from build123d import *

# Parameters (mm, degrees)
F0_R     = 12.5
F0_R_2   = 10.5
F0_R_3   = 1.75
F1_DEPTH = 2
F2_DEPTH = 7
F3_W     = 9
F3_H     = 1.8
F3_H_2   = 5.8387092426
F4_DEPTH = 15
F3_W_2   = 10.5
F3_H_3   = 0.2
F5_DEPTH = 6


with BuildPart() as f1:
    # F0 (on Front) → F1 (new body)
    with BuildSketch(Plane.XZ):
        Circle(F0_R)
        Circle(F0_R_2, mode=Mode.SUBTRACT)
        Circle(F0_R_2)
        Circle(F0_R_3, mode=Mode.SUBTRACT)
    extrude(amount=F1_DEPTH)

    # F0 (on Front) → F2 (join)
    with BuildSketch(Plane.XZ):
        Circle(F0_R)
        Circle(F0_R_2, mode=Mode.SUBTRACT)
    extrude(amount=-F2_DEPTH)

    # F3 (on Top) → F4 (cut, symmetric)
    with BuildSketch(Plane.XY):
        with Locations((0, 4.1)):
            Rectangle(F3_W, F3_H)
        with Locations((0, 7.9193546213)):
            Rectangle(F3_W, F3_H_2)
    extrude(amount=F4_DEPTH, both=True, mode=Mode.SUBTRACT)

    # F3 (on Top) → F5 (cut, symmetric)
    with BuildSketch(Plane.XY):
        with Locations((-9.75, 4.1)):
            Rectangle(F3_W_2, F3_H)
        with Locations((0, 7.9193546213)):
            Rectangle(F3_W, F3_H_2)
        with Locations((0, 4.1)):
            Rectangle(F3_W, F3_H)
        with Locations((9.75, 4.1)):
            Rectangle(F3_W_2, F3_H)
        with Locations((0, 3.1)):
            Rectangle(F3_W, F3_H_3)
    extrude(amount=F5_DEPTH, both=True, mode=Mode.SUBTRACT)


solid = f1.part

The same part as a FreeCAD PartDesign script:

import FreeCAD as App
import Part
import Sketcher
from FreeCAD import Vector
Q = App.Units.Quantity

doc = App.newDocument("Part")
body = doc.addObject("PartDesign::Body", "Body")

sketch1 = body.newObject("Sketcher::SketchObject", "Sketch")
sketch1.AttachmentSupport = (doc.getObject("XZ_Plane"), [""])
sketch1.MapMode = "FlatFace"
sketch1.addGeometry([
    Part.Circle(Vector(0, 0, 0), Vector(0, 0, 1), 12.5),
    Part.Circle(Vector(0, 0, 0), Vector(0, 0, 1), 1.8),
], False)
sketch1.addConstraint([
    Sketcher.Constraint("Coincident", 0, 3, -1, 1),
    Sketcher.Constraint("Coincident", 1, 3, -1, 1),
    Sketcher.Constraint("Diameter", 0, Q("25 mm")),
    Sketcher.Constraint("Diameter", 1, Q("3.5 mm")),
])
pad1 = body.newObject("PartDesign::Pad", "Pad")
pad1.Profile = sketch1
pad1.Length = 2

sketch2 = body.newObject("Sketcher::SketchObject", "Sketch001")
sketch2.AttachmentSupport = (doc.getObject("XZ_Plane"), [""])
sketch2.MapMode = "FlatFace"
sketch2.addGeometry([
    Part.Circle(Vector(0, 0, 0), Vector(0, 0, 1), 12),
    Part.Circle(Vector(0, 0, 0), Vector(0, 0, 1), 10),
], False)
sketch2.addConstraint([
    Sketcher.Constraint("Coincident", 0, 3, -1, 1),
    Sketcher.Constraint("Coincident", 1, 3, -1, 1),
    Sketcher.Constraint("Diameter", 0, Q("25 mm")),
    Sketcher.Constraint("Diameter", 1, Q("21 mm")),
])
pad2 = body.newObject("PartDesign::Pad", "Pad001")
pad2.Profile = sketch2
pad2.Length = 7
pad2.Reversed = True

sketch3 = body.newObject("Sketcher::SketchObject", "Sketch002")
sketch3.AttachmentSupport = (doc.getObject("XY_Plane"), [""])
sketch3.MapMode = "FlatFace"
sketch3.addGeometry([
    Part.LineSegment(Vector(-4, 3, 0), Vector(4, 3, 0)),
    Part.LineSegment(Vector(4, 3, 0), Vector(4, 11, 0)),
    Part.LineSegment(Vector(4, 11, 0), Vector(-4, 11, 0)),
    Part.LineSegment(Vector(-4, 11, 0), Vector(-4, 3, 0)),
], False)
sketch3.addConstraint([
    Sketcher.Constraint("Coincident", 0, 2, 1, 1),
    Sketcher.Constraint("Coincident", 1, 2, 2, 1),
    Sketcher.Constraint("Coincident", 2, 2, 3, 1),
    Sketcher.Constraint("Coincident", 3, 2, 0, 1),
    Sketcher.Constraint("Horizontal", 0),
    Sketcher.Constraint("Vertical", 1),
    Sketcher.Constraint("Horizontal", 2),
    Sketcher.Constraint("Vertical", 3),
    Sketcher.Constraint("DistanceX", 0, 1, 0, 2, Q("9 mm")),
    Sketcher.Constraint("DistanceX", -1, 1, 0, 2, Q("4.5 mm")),
    Sketcher.Constraint("DistanceY", -1, 1, 0, 2, Q("3.2 mm")),
    Sketcher.Constraint("DistanceY", 1, 1, 1, 2, Q("7.638709 mm")),
])
pocket1 = body.newObject("PartDesign::Pocket", "Pocket")
pocket1.Profile = sketch3
pocket1.Length = 30
pocket1.Midplane = True

sketch4 = body.newObject("Sketcher::SketchObject", "Sketch003")
sketch4.AttachmentSupport = (doc.getObject("XY_Plane"), [""])
sketch4.MapMode = "FlatFace"
sketch4.addGeometry([
    Part.LineSegment(Vector(-15, 5, 0), Vector(-15, 3.2, 0)),
    Part.LineSegment(Vector(-15, 3.2, 0), Vector(-4.5, 3.2, 0)),
    Part.LineSegment(Vector(-4.5, 3.2, 0), Vector(-4.5, 3, 0)),
    Part.LineSegment(Vector(-4.5, 3, 0), Vector(4.5, 3, 0)),
    Part.LineSegment(Vector(4.5, 3, 0), Vector(4.5, 3.2, 0)),
    Part.LineSegment(Vector(4.5, 3.2, 0), Vector(15, 3.2, 0)),
    Part.LineSegment(Vector(15, 3.2, 0), Vector(15, 5, 0)),
    Part.LineSegment(Vector(15, 5, 0), Vector(4.5, 5, 0)),
    Part.LineSegment(Vector(4.5, 5, 0), Vector(4.5, 10.84, 0)),
    Part.LineSegment(Vector(4.5, 10.84, 0), Vector(-4.5, 10.84, 0)),
    Part.LineSegment(Vector(-4.5, 10.84, 0), Vector(-4.5, 5, 0)),
    Part.LineSegment(Vector(-4.5, 5, 0), Vector(-15, 5, 0)),
], False)
sketch4.addConstraint([
    Sketcher.Constraint("Coincident", 0, 2, 1, 1),
    Sketcher.Constraint("Coincident", 1, 2, 2, 1),
    Sketcher.Constraint("Coincident", 2, 2, 3, 1),
    Sketcher.Constraint("Coincident", 3, 2, 4, 1),
    Sketcher.Constraint("Coincident", 4, 2, 5, 1),
    Sketcher.Constraint("Coincident", 5, 2, 6, 1),
    Sketcher.Constraint("Coincident", 6, 2, 7, 1),
    Sketcher.Constraint("Coincident", 7, 2, 8, 1),
    Sketcher.Constraint("Coincident", 8, 2, 9, 1),
    Sketcher.Constraint("Coincident", 9, 2, 10, 1),
    Sketcher.Constraint("Coincident", 10, 2, 11, 1),
    Sketcher.Constraint("Coincident", 11, 2, 0, 1),
    Sketcher.Constraint("Vertical", 0),
    Sketcher.Constraint("Horizontal", 1),
    Sketcher.Constraint("Vertical", 2),
    Sketcher.Constraint("Horizontal", 3),
    Sketcher.Constraint("Vertical", 4),
    Sketcher.Constraint("Horizontal", 5),
    Sketcher.Constraint("Vertical", 6),
    Sketcher.Constraint("Horizontal", 7),
    Sketcher.Constraint("Vertical", 8),
    Sketcher.Constraint("Horizontal", 9),
    Sketcher.Constraint("Vertical", 10),
    Sketcher.Constraint("Horizontal", 11),
    Sketcher.Constraint("Symmetric", 1, 2, 4, 2, -2),
    Sketcher.Constraint("Symmetric", 7, 2, 10, 2, -2),
    Sketcher.Constraint("Vertical", 4, 2, 7, 2),
    Sketcher.Constraint("Equal", 1, 5),
    Sketcher.Constraint("DistanceX", 3, 1, 3, 2, Q("9 mm")),
    Sketcher.Constraint("DistanceX", 1, 1, 1, 2, Q("10.5 mm")),
    Sketcher.Constraint("DistanceY", 0, 2, 0, 1, Q("1.8 mm")),
    Sketcher.Constraint("DistanceY", 2, 2, 2, 1, Q("0.2 mm")),
    Sketcher.Constraint("DistanceY", -1, 1, 2, 2, Q("3 mm")),
    Sketcher.Constraint("DistanceY", 8, 1, 8, 2, Q("5.838709 mm")),
])
pocket2 = body.newObject("PartDesign::Pocket", "Pocket001")
pocket2.Profile = sketch4
pocket2.Length = 12
pocket2.Midplane = True

doc.recompute()
